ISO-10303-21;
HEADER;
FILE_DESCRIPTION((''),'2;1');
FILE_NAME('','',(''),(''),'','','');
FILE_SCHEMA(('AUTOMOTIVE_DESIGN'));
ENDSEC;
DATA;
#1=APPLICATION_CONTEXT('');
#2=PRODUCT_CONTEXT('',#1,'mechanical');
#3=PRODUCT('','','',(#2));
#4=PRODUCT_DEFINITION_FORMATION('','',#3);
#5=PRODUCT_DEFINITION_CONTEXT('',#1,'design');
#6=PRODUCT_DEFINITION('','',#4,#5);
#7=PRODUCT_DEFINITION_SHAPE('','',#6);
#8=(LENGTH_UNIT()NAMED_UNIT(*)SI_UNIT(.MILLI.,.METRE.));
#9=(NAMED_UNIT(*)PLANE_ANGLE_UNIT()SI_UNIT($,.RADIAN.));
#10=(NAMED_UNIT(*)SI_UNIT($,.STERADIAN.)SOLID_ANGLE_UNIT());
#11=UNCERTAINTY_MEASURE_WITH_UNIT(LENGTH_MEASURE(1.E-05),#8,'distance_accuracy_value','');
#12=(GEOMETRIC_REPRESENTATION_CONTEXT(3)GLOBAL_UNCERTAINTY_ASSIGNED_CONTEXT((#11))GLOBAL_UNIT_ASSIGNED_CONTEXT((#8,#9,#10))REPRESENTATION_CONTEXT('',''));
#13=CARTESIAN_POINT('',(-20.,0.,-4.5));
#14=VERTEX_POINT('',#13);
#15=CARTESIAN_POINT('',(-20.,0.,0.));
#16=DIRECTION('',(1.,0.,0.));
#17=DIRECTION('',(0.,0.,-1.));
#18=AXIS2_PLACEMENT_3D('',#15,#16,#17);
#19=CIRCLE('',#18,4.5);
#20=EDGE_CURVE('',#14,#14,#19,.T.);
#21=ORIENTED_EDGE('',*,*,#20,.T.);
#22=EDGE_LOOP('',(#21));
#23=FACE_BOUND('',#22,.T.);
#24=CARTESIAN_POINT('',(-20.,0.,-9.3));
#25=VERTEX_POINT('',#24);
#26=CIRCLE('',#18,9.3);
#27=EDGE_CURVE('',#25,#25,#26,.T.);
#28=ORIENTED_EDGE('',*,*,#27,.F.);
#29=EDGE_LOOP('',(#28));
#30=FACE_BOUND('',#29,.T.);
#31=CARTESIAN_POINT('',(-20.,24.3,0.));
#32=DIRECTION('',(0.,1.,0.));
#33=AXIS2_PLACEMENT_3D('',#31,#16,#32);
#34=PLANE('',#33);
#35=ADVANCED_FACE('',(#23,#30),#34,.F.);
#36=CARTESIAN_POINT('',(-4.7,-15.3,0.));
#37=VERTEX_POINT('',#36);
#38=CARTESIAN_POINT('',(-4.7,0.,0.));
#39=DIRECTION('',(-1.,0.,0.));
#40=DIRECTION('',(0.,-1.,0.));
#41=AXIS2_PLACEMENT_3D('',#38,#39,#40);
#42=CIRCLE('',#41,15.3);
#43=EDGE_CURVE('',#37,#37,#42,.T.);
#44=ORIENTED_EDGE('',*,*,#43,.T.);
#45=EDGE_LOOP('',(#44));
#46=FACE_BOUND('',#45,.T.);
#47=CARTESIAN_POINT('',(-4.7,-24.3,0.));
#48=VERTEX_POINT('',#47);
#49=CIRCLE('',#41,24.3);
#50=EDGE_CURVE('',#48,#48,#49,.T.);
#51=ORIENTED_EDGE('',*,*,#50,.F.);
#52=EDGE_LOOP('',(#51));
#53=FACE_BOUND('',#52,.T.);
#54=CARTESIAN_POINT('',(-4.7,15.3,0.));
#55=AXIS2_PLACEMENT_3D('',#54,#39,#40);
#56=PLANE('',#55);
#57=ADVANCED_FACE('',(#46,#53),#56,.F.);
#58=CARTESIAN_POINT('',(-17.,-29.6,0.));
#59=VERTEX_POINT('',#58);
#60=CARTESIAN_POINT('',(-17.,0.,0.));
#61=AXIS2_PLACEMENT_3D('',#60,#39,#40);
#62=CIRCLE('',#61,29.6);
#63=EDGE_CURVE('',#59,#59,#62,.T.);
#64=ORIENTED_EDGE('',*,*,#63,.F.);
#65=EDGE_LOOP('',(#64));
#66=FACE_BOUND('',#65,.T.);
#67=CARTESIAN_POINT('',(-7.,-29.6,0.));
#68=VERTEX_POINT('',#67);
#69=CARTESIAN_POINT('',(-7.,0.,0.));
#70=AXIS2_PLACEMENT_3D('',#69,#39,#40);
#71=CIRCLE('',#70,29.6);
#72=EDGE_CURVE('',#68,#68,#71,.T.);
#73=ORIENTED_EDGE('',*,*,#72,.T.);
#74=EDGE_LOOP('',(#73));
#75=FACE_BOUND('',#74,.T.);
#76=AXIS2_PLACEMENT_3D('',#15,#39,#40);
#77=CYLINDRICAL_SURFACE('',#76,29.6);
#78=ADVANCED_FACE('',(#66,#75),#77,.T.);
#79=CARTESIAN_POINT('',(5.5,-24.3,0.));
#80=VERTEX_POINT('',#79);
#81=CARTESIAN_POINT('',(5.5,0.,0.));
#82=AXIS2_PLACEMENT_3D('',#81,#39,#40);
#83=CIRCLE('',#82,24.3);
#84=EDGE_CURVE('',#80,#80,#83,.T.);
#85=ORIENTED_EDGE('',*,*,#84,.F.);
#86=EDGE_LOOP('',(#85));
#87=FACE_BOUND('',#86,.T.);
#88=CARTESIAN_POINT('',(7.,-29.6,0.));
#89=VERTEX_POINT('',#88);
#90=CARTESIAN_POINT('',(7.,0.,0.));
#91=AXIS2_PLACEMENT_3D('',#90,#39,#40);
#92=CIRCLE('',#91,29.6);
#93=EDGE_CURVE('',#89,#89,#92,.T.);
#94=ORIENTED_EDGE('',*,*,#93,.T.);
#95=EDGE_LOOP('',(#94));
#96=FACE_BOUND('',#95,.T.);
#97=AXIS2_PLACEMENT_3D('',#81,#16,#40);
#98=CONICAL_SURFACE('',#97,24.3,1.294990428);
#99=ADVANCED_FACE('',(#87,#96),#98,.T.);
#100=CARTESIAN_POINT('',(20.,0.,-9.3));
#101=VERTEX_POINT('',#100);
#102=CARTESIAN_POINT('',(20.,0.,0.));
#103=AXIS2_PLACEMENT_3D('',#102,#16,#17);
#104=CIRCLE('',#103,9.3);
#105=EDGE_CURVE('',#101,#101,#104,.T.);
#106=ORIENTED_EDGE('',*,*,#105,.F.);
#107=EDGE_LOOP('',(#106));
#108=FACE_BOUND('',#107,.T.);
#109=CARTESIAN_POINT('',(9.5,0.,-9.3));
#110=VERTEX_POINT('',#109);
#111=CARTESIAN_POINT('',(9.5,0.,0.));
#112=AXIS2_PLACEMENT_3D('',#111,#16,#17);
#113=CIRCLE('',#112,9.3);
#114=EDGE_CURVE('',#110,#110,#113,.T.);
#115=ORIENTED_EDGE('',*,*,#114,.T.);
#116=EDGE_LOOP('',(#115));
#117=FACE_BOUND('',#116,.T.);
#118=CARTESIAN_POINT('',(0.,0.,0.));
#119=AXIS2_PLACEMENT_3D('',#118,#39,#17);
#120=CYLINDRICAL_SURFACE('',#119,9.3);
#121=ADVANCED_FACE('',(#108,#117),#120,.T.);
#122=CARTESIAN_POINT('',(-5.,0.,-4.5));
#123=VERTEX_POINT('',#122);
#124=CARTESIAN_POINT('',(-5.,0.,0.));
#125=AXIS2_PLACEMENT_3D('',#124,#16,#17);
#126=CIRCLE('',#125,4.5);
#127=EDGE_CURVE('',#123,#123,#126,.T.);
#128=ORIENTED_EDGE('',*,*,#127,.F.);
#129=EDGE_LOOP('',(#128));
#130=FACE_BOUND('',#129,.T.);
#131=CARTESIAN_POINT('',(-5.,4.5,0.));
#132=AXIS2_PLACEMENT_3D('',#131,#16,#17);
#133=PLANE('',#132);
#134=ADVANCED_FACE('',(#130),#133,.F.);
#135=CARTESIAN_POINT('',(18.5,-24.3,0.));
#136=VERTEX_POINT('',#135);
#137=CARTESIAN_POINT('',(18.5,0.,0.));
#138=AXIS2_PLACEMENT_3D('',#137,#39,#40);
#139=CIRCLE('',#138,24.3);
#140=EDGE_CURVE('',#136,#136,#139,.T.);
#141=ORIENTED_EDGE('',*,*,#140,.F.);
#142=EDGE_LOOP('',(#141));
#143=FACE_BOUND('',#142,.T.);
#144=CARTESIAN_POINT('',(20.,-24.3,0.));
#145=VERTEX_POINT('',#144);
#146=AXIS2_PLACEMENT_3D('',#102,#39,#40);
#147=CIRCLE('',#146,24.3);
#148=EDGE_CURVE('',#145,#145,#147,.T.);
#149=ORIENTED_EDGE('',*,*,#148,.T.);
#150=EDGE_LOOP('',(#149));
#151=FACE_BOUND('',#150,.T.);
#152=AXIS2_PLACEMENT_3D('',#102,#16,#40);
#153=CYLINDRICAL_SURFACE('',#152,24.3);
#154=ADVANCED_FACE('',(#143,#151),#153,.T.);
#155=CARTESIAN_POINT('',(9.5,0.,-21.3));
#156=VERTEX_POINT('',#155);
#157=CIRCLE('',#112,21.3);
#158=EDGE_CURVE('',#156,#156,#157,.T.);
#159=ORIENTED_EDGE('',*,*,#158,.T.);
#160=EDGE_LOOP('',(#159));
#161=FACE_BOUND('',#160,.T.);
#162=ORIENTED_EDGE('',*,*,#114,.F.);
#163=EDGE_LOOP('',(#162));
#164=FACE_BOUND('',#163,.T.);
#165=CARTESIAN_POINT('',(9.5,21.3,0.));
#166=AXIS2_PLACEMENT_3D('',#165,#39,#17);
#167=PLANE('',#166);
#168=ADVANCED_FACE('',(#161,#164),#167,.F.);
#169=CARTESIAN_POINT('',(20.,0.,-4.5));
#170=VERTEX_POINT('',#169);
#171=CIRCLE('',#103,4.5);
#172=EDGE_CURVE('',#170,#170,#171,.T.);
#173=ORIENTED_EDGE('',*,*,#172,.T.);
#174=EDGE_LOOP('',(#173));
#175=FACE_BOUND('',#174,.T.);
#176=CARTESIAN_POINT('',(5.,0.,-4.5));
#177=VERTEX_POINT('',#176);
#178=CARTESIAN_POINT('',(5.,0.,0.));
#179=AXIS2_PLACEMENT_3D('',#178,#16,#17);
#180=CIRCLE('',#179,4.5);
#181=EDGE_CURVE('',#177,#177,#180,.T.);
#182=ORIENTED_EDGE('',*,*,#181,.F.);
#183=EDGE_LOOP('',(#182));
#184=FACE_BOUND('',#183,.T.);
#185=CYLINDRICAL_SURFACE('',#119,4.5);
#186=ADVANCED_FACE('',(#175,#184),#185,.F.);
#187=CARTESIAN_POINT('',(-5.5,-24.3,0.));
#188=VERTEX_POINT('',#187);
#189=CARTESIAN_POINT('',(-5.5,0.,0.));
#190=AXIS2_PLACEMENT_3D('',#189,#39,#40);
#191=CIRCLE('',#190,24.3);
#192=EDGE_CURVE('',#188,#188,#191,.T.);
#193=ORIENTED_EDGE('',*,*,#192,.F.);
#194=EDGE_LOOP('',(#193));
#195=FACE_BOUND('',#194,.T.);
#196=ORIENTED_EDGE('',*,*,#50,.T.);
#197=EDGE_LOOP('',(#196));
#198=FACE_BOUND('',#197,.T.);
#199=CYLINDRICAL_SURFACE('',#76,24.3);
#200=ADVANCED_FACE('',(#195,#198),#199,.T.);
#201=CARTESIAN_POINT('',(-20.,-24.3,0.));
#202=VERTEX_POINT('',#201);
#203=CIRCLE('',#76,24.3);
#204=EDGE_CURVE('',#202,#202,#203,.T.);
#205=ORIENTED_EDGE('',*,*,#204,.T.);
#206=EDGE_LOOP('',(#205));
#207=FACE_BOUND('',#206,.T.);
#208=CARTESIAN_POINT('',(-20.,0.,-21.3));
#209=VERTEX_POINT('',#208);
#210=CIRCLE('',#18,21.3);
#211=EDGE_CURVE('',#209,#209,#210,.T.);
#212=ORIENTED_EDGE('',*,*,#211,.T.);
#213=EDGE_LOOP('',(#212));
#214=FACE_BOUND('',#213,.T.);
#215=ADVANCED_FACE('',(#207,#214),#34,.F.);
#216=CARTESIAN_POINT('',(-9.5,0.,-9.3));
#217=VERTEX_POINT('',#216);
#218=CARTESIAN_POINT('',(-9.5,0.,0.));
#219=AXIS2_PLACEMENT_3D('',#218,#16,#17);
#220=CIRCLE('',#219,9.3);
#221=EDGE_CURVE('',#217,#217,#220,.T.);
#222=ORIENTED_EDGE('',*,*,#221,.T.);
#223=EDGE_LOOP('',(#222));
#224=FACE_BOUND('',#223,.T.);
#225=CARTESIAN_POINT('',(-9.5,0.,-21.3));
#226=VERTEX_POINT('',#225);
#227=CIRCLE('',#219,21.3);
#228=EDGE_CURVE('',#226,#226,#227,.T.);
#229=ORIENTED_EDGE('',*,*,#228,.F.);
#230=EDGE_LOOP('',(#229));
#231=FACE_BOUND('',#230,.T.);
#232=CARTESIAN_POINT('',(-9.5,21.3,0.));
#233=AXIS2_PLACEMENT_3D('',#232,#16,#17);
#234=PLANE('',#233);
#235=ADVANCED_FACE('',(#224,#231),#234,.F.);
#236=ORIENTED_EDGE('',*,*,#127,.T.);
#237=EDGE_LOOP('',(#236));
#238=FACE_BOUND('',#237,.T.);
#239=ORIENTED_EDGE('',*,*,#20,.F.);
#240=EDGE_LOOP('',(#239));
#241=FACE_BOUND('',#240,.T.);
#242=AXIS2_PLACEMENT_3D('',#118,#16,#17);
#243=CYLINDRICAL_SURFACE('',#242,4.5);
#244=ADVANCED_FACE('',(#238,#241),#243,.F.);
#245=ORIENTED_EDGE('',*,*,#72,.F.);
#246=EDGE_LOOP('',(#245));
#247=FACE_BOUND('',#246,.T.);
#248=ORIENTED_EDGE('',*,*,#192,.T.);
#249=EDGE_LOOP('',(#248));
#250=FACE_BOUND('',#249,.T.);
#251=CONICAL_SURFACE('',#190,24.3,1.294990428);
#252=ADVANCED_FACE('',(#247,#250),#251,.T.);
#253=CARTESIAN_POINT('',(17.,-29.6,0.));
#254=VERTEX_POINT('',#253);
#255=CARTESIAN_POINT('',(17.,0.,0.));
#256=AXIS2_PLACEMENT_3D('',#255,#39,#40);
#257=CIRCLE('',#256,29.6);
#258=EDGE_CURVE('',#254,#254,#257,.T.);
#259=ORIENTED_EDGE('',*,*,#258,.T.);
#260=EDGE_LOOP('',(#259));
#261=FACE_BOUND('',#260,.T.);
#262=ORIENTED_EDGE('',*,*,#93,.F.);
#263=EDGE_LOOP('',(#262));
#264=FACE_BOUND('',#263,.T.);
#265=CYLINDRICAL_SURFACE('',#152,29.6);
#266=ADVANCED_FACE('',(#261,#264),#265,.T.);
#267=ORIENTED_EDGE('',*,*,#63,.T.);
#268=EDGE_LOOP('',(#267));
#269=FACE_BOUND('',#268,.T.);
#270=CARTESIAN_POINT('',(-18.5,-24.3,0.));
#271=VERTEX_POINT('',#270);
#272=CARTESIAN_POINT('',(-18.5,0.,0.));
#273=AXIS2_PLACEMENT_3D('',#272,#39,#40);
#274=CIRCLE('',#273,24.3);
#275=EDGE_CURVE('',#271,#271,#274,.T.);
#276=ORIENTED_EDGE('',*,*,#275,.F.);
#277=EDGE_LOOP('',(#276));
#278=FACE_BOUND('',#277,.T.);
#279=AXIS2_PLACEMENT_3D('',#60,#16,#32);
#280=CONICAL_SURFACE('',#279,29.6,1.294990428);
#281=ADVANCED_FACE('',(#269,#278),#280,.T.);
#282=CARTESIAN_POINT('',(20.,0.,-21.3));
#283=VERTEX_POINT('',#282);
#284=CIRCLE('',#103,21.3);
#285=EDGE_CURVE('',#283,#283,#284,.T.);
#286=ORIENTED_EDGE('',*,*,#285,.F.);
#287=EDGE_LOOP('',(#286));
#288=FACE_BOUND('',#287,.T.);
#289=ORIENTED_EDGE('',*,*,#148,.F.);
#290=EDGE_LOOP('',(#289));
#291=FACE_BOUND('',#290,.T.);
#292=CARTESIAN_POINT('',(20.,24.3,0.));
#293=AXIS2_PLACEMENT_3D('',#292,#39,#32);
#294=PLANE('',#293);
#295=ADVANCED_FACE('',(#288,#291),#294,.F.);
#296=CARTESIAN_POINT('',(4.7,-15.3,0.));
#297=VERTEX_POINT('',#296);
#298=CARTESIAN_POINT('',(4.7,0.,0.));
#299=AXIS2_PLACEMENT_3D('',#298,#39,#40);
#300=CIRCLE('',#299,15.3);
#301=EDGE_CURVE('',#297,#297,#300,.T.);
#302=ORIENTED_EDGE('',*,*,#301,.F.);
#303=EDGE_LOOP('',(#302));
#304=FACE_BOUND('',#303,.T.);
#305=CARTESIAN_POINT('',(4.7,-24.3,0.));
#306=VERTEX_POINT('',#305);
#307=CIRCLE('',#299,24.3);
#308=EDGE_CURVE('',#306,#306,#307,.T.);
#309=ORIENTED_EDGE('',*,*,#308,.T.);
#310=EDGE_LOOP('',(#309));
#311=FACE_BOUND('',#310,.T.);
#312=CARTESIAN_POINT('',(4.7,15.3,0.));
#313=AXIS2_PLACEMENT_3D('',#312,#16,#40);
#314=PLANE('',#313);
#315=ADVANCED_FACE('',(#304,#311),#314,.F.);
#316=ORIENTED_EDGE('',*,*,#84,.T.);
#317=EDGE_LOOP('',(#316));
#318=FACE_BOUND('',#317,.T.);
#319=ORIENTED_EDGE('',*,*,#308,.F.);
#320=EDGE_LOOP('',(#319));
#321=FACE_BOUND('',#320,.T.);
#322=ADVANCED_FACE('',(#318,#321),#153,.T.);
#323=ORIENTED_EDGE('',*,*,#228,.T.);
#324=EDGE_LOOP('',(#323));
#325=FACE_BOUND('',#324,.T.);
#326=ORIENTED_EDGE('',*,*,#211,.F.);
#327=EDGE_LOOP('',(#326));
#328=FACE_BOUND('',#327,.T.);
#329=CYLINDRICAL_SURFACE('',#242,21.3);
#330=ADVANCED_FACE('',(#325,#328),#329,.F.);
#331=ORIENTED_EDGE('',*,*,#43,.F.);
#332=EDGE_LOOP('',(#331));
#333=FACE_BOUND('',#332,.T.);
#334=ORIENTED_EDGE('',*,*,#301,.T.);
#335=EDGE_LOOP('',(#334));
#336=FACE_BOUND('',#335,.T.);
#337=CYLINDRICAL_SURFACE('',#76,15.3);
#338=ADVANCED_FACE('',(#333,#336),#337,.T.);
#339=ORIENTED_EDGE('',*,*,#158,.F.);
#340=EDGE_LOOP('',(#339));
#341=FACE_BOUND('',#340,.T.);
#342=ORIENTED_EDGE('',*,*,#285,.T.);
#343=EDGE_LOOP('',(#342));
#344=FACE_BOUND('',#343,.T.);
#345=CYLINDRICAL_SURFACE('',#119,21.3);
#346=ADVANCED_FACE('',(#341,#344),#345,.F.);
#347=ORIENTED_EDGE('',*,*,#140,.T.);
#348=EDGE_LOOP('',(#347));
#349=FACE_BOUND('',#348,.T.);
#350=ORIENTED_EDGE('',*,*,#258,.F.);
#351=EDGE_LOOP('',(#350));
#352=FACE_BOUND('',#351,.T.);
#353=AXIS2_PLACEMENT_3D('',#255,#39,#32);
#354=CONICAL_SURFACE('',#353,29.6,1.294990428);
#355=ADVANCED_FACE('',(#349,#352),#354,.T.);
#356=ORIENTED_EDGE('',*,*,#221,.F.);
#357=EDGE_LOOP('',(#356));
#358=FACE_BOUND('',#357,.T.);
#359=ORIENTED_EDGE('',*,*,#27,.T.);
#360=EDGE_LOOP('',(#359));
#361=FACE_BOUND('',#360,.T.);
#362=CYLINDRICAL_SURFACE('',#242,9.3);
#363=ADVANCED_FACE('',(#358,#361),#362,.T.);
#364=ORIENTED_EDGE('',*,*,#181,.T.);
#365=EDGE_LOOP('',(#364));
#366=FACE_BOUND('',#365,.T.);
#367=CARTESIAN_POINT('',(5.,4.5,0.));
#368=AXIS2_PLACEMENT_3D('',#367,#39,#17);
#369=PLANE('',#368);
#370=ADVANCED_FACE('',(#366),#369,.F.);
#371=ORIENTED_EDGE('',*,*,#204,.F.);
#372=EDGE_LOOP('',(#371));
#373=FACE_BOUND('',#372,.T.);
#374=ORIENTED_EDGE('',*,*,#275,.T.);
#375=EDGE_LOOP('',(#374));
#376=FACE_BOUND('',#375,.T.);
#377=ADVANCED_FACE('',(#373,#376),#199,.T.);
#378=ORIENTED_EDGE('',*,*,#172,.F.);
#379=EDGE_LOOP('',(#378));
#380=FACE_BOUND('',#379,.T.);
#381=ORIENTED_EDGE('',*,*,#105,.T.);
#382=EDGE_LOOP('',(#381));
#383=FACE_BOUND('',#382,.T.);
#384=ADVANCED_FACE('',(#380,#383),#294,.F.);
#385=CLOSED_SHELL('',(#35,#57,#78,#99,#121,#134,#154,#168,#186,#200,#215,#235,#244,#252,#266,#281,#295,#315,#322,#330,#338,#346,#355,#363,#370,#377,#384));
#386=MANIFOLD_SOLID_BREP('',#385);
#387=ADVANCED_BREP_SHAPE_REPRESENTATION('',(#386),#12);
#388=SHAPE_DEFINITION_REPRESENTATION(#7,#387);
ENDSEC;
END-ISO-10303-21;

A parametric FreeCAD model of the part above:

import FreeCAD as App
import Part
import Sketcher
from FreeCAD import Vector

doc = App.newDocument("Part")
body = doc.addObject("PartDesign::Body", "Body")

sketch1 = doc.addObject("Sketcher::SketchObject", "Sketch")
body.addObject(sketch1)
sketch1.AttachmentSupport = (doc.XY_Plane, [""])
sketch1.MapMode = "FlatFace"
sketch1.addGeometry([
    Part.LineSegment(Vector(0, 0, 0), Vector(0, 15.3, 0)),
    Part.LineSegment(Vector(0, 15.3, 0), Vector(-4.7, 15.3, 0)),
    Part.LineSegment(Vector(-4.7, 15.3, 0), Vector(-4.7, 24.3, 0)),
    Part.LineSegment(Vector(-4.7, 24.3, 0), Vector(-5.5, 24.3, 0)),
    Part.LineSegment(Vector(-5.5, 24.3, 0), Vector(-7, 29.6, 0)),
    Part.LineSegment(Vector(-7, 29.6, 0), Vector(-17, 29.6, 0)),
    Part.LineSegment(Vector(-17, 29.6, 0), Vector(-18.5, 24.3, 0)),
    Part.LineSegment(Vector(-18.5, 24.3, 0), Vector(-20, 24.3, 0)),
    Part.LineSegment(Vector(-20, 24.3, 0), Vector(-20, 0, 0)),
    Part.LineSegment(Vector(-20, 0, 0), Vector(0, 0, 0)),
], False)
sketch1.addConstraint([
    Sketcher.Constraint("Coincident", 0, 2, 1, 1),
    Sketcher.Constraint("Coincident", 1, 2, 2, 1),
    Sketcher.Constraint("Coincident", 2, 2, 3, 1),
    Sketcher.Constraint("Coincident", 3, 2, 4, 1),
    Sketcher.Constraint("Coincident", 4, 2, 5, 1),
    Sketcher.Constraint("Coincident", 5, 2, 6, 1),
    Sketcher.Constraint("Coincident", 6, 2, 7, 1),
    Sketcher.Constraint("Coincident", 7, 2, 8, 1),
    Sketcher.Constraint("Coincident", 8, 2, 9, 1),
    Sketcher.Constraint("Coincident", 9, 2, 0, 1),
    Sketcher.Constraint("Vertical", 0),
    Sketcher.Constraint("Horizontal", 1),
    Sketcher.Constraint("Vertical", 2),
    Sketcher.Constraint("Horizontal", 3),
    Sketcher.Constraint("Horizontal", 5),
    Sketcher.Constraint("Horizontal", 7),
    Sketcher.Constraint("Vertical", 8),
    Sketcher.Constraint("Horizontal", 9),
    Sketcher.Constraint("Coincident", 9, 2, -1, 1),
    Sketcher.Constraint("Horizontal", 3, 2, 6, 2),
    Sketcher.Constraint("Equal", 4, 6),
    Sketcher.Constraint("DistanceX", 5, 2, 5, 1, 10.0),
    Sketcher.Constraint("DistanceX", 9, 1, 9, 2, 20.0),
    Sketcher.Constraint("DistanceY", 2, 1, 2, 2, 9.0),
    Sketcher.Constraint("DistanceX", 1, 2, 1, 1, 4.7),
    Sketcher.Constraint("DistanceX", 3, 2, 3, 1, 0.8),
    Sketcher.Constraint("DistanceX", 7, 2, 7, 1, 1.5),
    Sketcher.Constraint("DistanceY", 0, 1, 0, 2, 15.3),
    Sketcher.Constraint("DistanceY", -1, 1, 4, 2, 29.6),
])
revolution = doc.addObject("PartDesign::Revolution", "Revolution")
body.addObject(revolution)
revolution.Profile = sketch1
revolution.ReferenceAxis = (sketch1, ["H_Axis"])
revolution.Angle = 360

sketch2 = doc.addObject("Sketcher::SketchObject", "Sketch001")
body.addObject(sketch2)
sketch2.AttachmentSupport = (doc.XY_Plane, [""])
sketch2.MapMode = "FlatFace"
sketch2.addGeometry([
    Part.LineSegment(Vector(-20, 21.3, 0), Vector(-20, 9.3, 0)),
    Part.LineSegment(Vector(-20, 9.3, 0), Vector(-9.5, 9.3, 0)),
    Part.LineSegment(Vector(-9.5, 9.3, 0), Vector(-9.5, 21.3, 0)),
    Part.LineSegment(Vector(-9.5, 21.3, 0), Vector(-20, 21.3, 0)),
    Part.LineSegment(Vector(-20, 4.5, 0), Vector(-20, 0, 0)),
    Part.LineSegment(Vector(-20, 0, 0), Vector(-5, 0, 0)),
    Part.LineSegment(Vector(-5, 0, 0), Vector(-5, 4.5, 0)),
    Part.LineSegment(Vector(-5, 4.5, 0), Vector(-20, 4.5, 0)),
], False)
sketch2.addConstraint([
    Sketcher.Constraint("Coincident", 0, 2, 1, 1),
    Sketcher.Constraint("Coincident", 1, 2, 2, 1),
    Sketcher.Constraint("Coincident", 2, 2, 3, 1),
    Sketcher.Constraint("Coincident", 3, 2, 0, 1),
    Sketcher.Constraint("Coincident", 4, 2, 5, 1),
    Sketcher.Constraint("Coincident", 5, 2, 6, 1),
    Sketcher.Constraint("Coincident", 6, 2, 7, 1),
    Sketcher.Constraint("Coincident", 7, 2, 4, 1),
    Sketcher.Constraint("Vertical", 0),
    Sketcher.Constraint("Horizontal", 1),
    Sketcher.Constraint("Vertical", 2),
    Sketcher.Constraint("Horizontal", 3),
    Sketcher.Constraint("Vertical", 4),
    Sketcher.Constraint("Horizontal", 5),
    Sketcher.Constraint("Vertical", 6),
    Sketcher.Constraint("Horizontal", 7),
    Sketcher.Constraint("PointOnObject", 4, 2, -1),
    Sketcher.Constraint("Vertical", 3, 2, 4, 2),
    Sketcher.Constraint("DistanceX", 5, 1, 5, 2, 15.0),
    Sketcher.Constraint("DistanceY", 0, 2, 0, 1, 12.0),
    Sketcher.Constraint("DistanceX", 1, 1, 1, 2, 10.5),
    Sketcher.Constraint("DistanceY", 4, 2, 4, 1, 4.5),
    Sketcher.Constraint("DistanceX", 0, 2, -1, 1, 20.0),
    Sketcher.Constraint("DistanceY", -1, 1, 0, 2, 9.3),
])
groove = doc.addObject("PartDesign::Groove", "Groove")
body.addObject(groove)
groove.Profile = sketch2
groove.ReferenceAxis = (sketch2, ["H_Axis"])
groove.Angle = 360
doc.recompute()

mirrored = doc.addObject("PartDesign::Mirrored", "Mirrored")
body.addObject(mirrored)
mirrored.Originals = [revolution, groove]
mirrored.MirrorPlane = (doc.YZ_Plane, [""])
body.Tip = mirrored

doc.recompute()
